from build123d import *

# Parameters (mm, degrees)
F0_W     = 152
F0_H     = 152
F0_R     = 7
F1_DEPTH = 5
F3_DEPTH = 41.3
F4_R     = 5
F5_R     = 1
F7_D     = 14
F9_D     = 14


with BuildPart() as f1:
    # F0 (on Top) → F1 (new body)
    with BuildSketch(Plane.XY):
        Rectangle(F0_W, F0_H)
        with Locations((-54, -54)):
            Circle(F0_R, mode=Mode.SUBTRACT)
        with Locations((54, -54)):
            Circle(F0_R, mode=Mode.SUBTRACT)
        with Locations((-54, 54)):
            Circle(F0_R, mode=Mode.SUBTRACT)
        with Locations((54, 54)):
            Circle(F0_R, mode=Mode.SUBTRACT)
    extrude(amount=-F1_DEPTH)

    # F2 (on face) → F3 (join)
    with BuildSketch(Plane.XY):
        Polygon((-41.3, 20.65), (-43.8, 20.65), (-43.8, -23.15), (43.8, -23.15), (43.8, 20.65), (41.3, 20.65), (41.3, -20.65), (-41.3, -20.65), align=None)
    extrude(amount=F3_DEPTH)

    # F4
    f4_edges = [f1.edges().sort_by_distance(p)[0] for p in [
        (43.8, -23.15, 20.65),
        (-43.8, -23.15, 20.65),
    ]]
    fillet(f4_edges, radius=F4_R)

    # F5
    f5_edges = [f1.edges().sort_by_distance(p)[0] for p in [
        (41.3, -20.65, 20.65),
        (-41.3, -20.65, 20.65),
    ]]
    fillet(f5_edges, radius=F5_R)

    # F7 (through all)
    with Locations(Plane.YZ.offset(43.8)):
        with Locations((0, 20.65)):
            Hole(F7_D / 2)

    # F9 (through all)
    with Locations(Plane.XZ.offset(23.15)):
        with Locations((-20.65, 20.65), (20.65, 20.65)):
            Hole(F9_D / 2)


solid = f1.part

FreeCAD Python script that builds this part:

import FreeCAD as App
import Part
import Sketcher
from FreeCAD import Vector
Q = App.Units.Quantity


def edges_at(feature, points):
    """Names of the edges that pass closest to the given points."""
    edges = feature.Shape.Edges
    near = lambda p: min(range(len(edges)), key=lambda i: edges[i].distToShape(Part.Vertex(*p))[0])
    return sorted({f"Edge{near(p) + 1}" for p in points})

doc = App.newDocument("Part")
body = doc.addObject("PartDesign::Body", "Body")

sketch1 = body.newObject("Sketcher::SketchObject", "Sketch")
sketch1.AttachmentSupport = (doc.getObject("XY_Plane"), [""])
sketch1.MapMode = "FlatFace"
sketch1.addGeometry([
    Part.LineSegment(Vector(-76, 76, 0), Vector(-76, -76, 0)),
    Part.LineSegment(Vector(-76, -76, 0), Vector(76, -76, 0)),
    Part.LineSegment(Vector(76, -76, 0), Vector(76, 76, 0)),
    Part.LineSegment(Vector(76, 76, 0), Vector(-76, 76, 0)),
    Part.Circle(Vector(-54, -54, 0), Vector(0, 0, 1), 7),
    Part.Circle(Vector(54, -54, 0), Vector(0, 0, 1), 7),
    Part.Circle(Vector(-54, 54, 0), Vector(0, 0, 1), 7),
    Part.Circle(Vector(54, 54, 0), Vector(0, 0, 1), 7),
], False)
sketch1.addConstraint([
    Sketcher.Constraint("Coincident", 0, 2, 1, 1),
    Sketcher.Constraint("Coincident", 1, 2, 2, 1),
    Sketcher.Constraint("Coincident", 2, 2, 3, 1),
    Sketcher.Constraint("Coincident", 3, 2, 0, 1),
    Sketcher.Constraint("Vertical", 0),
    Sketcher.Constraint("Horizontal", 1),
    Sketcher.Constraint("Vertical", 2),
    Sketcher.Constraint("Horizontal", 3),
    Sketcher.Constraint("Equal", 4, 5),
    Sketcher.Constraint("Equal", 5, 6),
    Sketcher.Constraint("Equal", 6, 7),
    Sketcher.Constraint("Symmetric", 5, 3, 6, 3, -1, 1),
    Sketcher.Constraint("Symmetric", 4, 3, 7, 3, -1, 1),
    Sketcher.Constraint("Symmetric", 0, 2, 2, 2, -1, 1),
    Sketcher.Constraint("Symmetric", 4, 3, 5, 3, -2),
    Sketcher.Constraint("Equal", 3, 0),
    Sketcher.Constraint("Diameter", 4, Q("14 mm")),
    Sketcher.Constraint("DistanceX", 1, 1, 1, 2, Q("152 mm")),
    Sketcher.Constraint("DistanceX", 4, 3, -1, 1, Q("54 mm")),
    Sketcher.Constraint("DistanceY", 4, 3, -1, 1, Q("54 mm")),
])
pad1 = body.newObject("PartDesign::Pad", "Pad")
pad1.Profile = sketch1
pad1.Length = 5
pad1.Reversed = True

sketch2 = body.newObject("Sketcher::SketchObject", "Sketch001")
sketch2.AttachmentSupport = (doc.getObject("XY_Plane"), [""])
sketch2.MapMode = "FlatFace"
sketch2.addGeometry([
    Part.LineSegment(Vector(-41.3, 20.6, 0), Vector(-43.8, 20.6, 0)),
    Part.LineSegment(Vector(-43.8, 20.6, 0), Vector(-43.8, -23.1, 0)),
    Part.LineSegment(Vector(-43.8, -23.1, 0), Vector(43.8, -23.1, 0)),
    Part.LineSegment(Vector(43.8, -23.1, 0), Vector(43.8, 20.6, 0)),
    Part.LineSegment(Vector(43.8, 20.6, 0), Vector(41.3, 20.6, 0)),
    Part.LineSegment(Vector(41.3, 20.6, 0), Vector(41.3, -20.6, 0)),
    Part.LineSegment(Vector(41.3, -20.6, 0), Vector(-41.3, -20.6, 0)),
    Part.LineSegment(Vector(-41.3, -20.6, 0), Vector(-41.3, 20.6, 0)),
], False)
sketch2.addConstraint([
    Sketcher.Constraint("Coincident", 0, 2, 1, 1),
    Sketcher.Constraint("Coincident", 1, 2, 2, 1),
    Sketcher.Constraint("Coincident", 2, 2, 3, 1),
    Sketcher.Constraint("Coincident", 3, 2, 4, 1),
    Sketcher.Constraint("Coincident", 4, 2, 5, 1),
    Sketcher.Constraint("Coincident", 5, 2, 6, 1),
    Sketcher.Constraint("Coincident", 6, 2, 7, 1),
    Sketcher.Constraint("Coincident", 7, 2, 0, 1),
    Sketcher.Constraint("Horizontal", 0),
    Sketcher.Constraint("Vertical", 1),
    Sketcher.Constraint("Horizontal", 2),
    Sketcher.Constraint("Vertical", 3),
    Sketcher.Constraint("Horizontal", 4),
    Sketcher.Constraint("Vertical", 5),
    Sketcher.Constraint("Horizontal", 6),
    Sketcher.Constraint("Vertical", 7),
    Sketcher.Constraint("Symmetric", 4, 2, 6, 2, -1, 1),
    Sketcher.Constraint("Symmetric", 0, 2, 3, 2, -2),
    Sketcher.Constraint("DistanceX", 0, 2, 0, 1, Q("2.5 mm")),
    Sketcher.Constraint("DistanceX", 2, 1, 2, 2, Q("87.6 mm")),
    Sketcher.Constraint("DistanceY", 1, 2, 1, 1, Q("43.8 mm")),
    Sketcher.Constraint("DistanceY", 5, 2, 5, 1, Q("41.3 mm")),
])
pad2 = body.newObject("PartDesign::Pad", "Pad001")
pad2.Profile = sketch2
pad2.Length = 41.3
doc.recompute()

fillet = body.newObject("PartDesign::Fillet", "Fillet")
fillet.Base = (pad2, edges_at(pad2, [(43.8, -23.15, 20.65), (-43.8, -23.15, 20.65)]))
fillet.Radius = 5
doc.recompute()

fillet2 = body.newObject("PartDesign::Fillet", "Fillet001")
fillet2.Base = (fillet, edges_at(fillet, [(41.3, -20.65, 20.65), (-41.3, -20.65, 20.65)]))
fillet2.Radius = 1

sketch3 = body.newObject("Sketcher::SketchObject", "Sketch002")
sketch3.AttachmentSupport = (doc.getObject("YZ_Plane"), [""])
sketch3.MapMode = "FlatFace"
sketch3.AttachmentOffset = App.Placement(Vector(0, 0, 43.8), App.Rotation())
sketch3.addGeometry(Part.Circle(Vector(0, 21, 0), Vector(0, 0, 1), 7), False)
sketch3.addConstraint([
    Sketcher.Constraint("PointOnObject", 0, 3, -2),
    Sketcher.Constraint("Diameter", 0, Q("14 mm")),
    Sketcher.Constraint("DistanceY", -1, 1, 0, 3, Q("20.65 mm")),
])
doc.recompute()
hole = body.newObject("PartDesign::Hole", "Hole")
hole.Profile = sketch3
hole.ThreadType = "None"
hole.Diameter = 14
hole.DepthType = "ThroughAll"

sketch4 = body.newObject("Sketcher::SketchObject", "Sketch003")
sketch4.AttachmentSupport = (doc.getObject("XZ_Plane"), [""])
sketch4.MapMode = "FlatFace"
sketch4.AttachmentOffset = App.Placement(Vector(0, 0, 23.15), App.Rotation())
sketch4.addGeometry([
    Part.Circle(Vector(-21, 21, 0), Vector(0, 0, 1), 7),
    Part.Circle(Vector(21, 21, 0), Vector(0, 0, 1), 7),
], False)
sketch4.addConstraint([
    Sketcher.Constraint("Equal", 0, 1),
    Sketcher.Constraint("Symmetric", 0, 3, 1, 3, -2),
    Sketcher.Constraint("Diameter", 0, Q("14 mm")),
    Sketcher.Constraint("DistanceX", 0, 3, 1, 3, Q("41.3 mm")),
    Sketcher.Constraint("DistanceY", -1, 1, 0, 3, Q("20.65 mm")),
])
doc.recompute()
hole2 = body.newObject("PartDesign::Hole", "Hole001")
hole2.Profile = sketch4
hole2.ThreadType = "None"
hole2.Diameter = 14
hole2.DepthType = "ThroughAll"

doc.recompute()
